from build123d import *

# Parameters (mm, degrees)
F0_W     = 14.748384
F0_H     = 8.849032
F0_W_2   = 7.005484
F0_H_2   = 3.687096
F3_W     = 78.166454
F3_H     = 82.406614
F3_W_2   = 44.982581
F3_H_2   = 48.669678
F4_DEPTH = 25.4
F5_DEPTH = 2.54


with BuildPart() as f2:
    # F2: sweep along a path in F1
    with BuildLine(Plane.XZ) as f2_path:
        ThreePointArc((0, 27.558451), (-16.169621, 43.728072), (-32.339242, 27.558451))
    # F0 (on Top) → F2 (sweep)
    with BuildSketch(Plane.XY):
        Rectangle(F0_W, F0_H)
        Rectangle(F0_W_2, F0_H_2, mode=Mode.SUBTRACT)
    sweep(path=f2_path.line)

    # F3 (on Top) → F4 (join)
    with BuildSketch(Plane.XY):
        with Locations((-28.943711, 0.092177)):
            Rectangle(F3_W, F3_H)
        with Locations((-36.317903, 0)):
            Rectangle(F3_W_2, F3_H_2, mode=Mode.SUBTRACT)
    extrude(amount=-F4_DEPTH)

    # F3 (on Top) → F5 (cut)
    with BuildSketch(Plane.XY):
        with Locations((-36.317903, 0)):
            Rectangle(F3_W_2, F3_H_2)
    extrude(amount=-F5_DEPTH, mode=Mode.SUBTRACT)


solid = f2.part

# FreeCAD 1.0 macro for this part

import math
import FreeCAD as App
import Part
import Sketcher
Q = App.Units.Quantity


def add_polygon(sketch, points):
    """Adds a closed chain of lines whose ends are joined by coincident constraints."""
    first, n = sketch.GeometryCount, len(points)
    for a, b in zip(points, points[1:] + points[:1]):
        sketch.addGeometry(Part.LineSegment(App.Vector(*a, 0), App.Vector(*b, 0)), False)
    for i in range(n):
        sketch.addConstraint(Sketcher.Constraint("Coincident", first + i, 2, first + (i + 1) % n, 1))

doc = App.newDocument("Part")
body = doc.addObject("PartDesign::Body", "Body")

# Sketch on XY plane
sketch1 = body.newObject("Sketcher::SketchObject", "Sketch")
sketch1.AttachmentSupport = (doc.getObject("XY_Plane"), [""])
sketch1.MapMode = "FlatFace"
add_polygon(sketch1, [(-7.4, 4.4), (-7.4, -4.4), (7.4, -4.4), (7.4, 4.4)])  # lines 0-3
add_polygon(sketch1, [(3.5, -1.8), (-3.5, -1.8), (-3.5, 1.8), (3.5, 1.8)])  # lines 4-7
sketch1.addConstraint([
    Sketcher.Constraint("Vertical", 0),
    Sketcher.Constraint("Horizontal", 1),
    Sketcher.Constraint("Vertical", 2),
    Sketcher.Constraint("Horizontal", 3),
    Sketcher.Constraint("Horizontal", 4),
    Sketcher.Constraint("Vertical", 5),
    Sketcher.Constraint("Horizontal", 6),
    Sketcher.Constraint("Vertical", 7),
    Sketcher.Constraint("Symmetric", 0, 2, 2, 2, -1, 1),
    Sketcher.Constraint("Symmetric", 4, 2, 6, 2, -1, 1),
    Sketcher.Constraint("DistanceY", 0, 2, 0, 1, 8.849032),
    Sketcher.Constraint("DistanceX", 1, 1, 1, 2, 14.748384),
    Sketcher.Constraint("DistanceX", 4, 2, 4, 1, 7.005484),
    Sketcher.Constraint("DistanceY", 5, 1, 5, 2, 3.687096),
])

# Sketch on XZ plane
sketch2 = body.newObject("Sketcher::SketchObject", "Sketch001")
sketch2.AttachmentSupport = (doc.getObject("XZ_Plane"), [""])
sketch2.MapMode = "FlatFace"
sketch2.addGeometry(Part.ArcOfCircle(Part.Circle(App.Vector(-16, 28, 0), App.Vector(0, 0, 1), 16), math.radians(0), math.radians(180)), False)
sketch2.addConstraint([
    Sketcher.Constraint("PointOnObject", 0, 1, -2),
    Sketcher.Constraint("Radius", 0, 16.169621),
    Sketcher.Constraint("DistanceY", -1, 1, 0, 3, 27.558451),
    Sketcher.Constraint("DistanceY", -1, 1, 0, 1, 27.558451),
    Sketcher.Constraint("DistanceY", -1, 1, 0, 2, 27.558451),
])
doc.recompute()

additivepipe = body.newObject("PartDesign::AdditivePipe", "AdditivePipe")
additivepipe.Profile = sketch1
additivepipe.Spine = (sketch2, ["Edge1"])

# Sketch on XY plane
sketch3 = body.newObject("Sketcher::SketchObject", "Sketch002")
sketch3.AttachmentSupport = (doc.getObject("XY_Plane"), [""])
sketch3.MapMode = "FlatFace"
add_polygon(sketch3, [(-68, 41), (-68, -41), (10, -41), (10, 41)])  # lines 0-3
add_polygon(sketch3, [(-14, -24), (-59, -24), (-59, 24), (-14, 24)])  # lines 4-7
sketch3.addConstraint([
    Sketcher.Constraint("Vertical", 0),
    Sketcher.Constraint("Horizontal", 1),
    Sketcher.Constraint("Vertical", 2),
    Sketcher.Constraint("Horizontal", 3),
    Sketcher.Constraint("Horizontal", 4),
    Sketcher.Constraint("Vertical", 5),
    Sketcher.Constraint("Horizontal", 6),
    Sketcher.Constraint("Vertical", 7),
    Sketcher.Constraint("DistanceX", 4, 2, 4, 1, 44.982581),
    Sketcher.Constraint("DistanceX", 1, 1, 1, 2, 78.166454),
    Sketcher.Constraint("DistanceY", 0, 2, 0, 1, 82.406614),
    Sketcher.Constraint("DistanceY", 5, 1, 5, 2, 48.669678),
    Sketcher.Constraint("DistanceX", 0, 2, -1, 1, 68.026938),
    Sketcher.Constraint("DistanceY", 0, 2, -1, 1, 41.11113),
    Sketcher.Constraint("DistanceY", 4, 2, -1, 1, 24.334839),
    Sketcher.Constraint("DistanceX", 4, 2, 1, 2, 68.94871),
])
pad1 = body.newObject("PartDesign::Pad", "Pad")
pad1.Profile = sketch3
pad1.Length = Q("1 in")
pad1.Reversed = True

# Sketch on XY plane
sketch4 = body.newObject("Sketcher::SketchObject", "Sketch003")
sketch4.AttachmentSupport = (doc.getObject("XY_Plane"), [""])
sketch4.MapMode = "FlatFace"
add_polygon(sketch4, [(-59, 24), (-59, -24), (-14, -24), (-14, 24)])  # lines 0-3
sketch4.addConstraint([
    Sketcher.Constraint("Vertical", 0),
    Sketcher.Constraint("Horizontal", 1),
    Sketcher.Constraint("Vertical", 2),
    Sketcher.Constraint("Horizontal", 3),
    Sketcher.Constraint("DistanceX", 1, 1, 1, 2, 44.982581),
    Sketcher.Constraint("DistanceY", 0, 2, 0, 1, 48.669678),
    Sketcher.Constraint("DistanceY", 0, 2, -1, 1, 24.334839),
    Sketcher.Constraint("DistanceX", 0, 2, -1, 1, 58.809193),
])
pocket1 = body.newObject("PartDesign::Pocket", "Pocket")
pocket1.Profile = sketch4
pocket1.Length = Q("0.1 in")

doc.recompute()
